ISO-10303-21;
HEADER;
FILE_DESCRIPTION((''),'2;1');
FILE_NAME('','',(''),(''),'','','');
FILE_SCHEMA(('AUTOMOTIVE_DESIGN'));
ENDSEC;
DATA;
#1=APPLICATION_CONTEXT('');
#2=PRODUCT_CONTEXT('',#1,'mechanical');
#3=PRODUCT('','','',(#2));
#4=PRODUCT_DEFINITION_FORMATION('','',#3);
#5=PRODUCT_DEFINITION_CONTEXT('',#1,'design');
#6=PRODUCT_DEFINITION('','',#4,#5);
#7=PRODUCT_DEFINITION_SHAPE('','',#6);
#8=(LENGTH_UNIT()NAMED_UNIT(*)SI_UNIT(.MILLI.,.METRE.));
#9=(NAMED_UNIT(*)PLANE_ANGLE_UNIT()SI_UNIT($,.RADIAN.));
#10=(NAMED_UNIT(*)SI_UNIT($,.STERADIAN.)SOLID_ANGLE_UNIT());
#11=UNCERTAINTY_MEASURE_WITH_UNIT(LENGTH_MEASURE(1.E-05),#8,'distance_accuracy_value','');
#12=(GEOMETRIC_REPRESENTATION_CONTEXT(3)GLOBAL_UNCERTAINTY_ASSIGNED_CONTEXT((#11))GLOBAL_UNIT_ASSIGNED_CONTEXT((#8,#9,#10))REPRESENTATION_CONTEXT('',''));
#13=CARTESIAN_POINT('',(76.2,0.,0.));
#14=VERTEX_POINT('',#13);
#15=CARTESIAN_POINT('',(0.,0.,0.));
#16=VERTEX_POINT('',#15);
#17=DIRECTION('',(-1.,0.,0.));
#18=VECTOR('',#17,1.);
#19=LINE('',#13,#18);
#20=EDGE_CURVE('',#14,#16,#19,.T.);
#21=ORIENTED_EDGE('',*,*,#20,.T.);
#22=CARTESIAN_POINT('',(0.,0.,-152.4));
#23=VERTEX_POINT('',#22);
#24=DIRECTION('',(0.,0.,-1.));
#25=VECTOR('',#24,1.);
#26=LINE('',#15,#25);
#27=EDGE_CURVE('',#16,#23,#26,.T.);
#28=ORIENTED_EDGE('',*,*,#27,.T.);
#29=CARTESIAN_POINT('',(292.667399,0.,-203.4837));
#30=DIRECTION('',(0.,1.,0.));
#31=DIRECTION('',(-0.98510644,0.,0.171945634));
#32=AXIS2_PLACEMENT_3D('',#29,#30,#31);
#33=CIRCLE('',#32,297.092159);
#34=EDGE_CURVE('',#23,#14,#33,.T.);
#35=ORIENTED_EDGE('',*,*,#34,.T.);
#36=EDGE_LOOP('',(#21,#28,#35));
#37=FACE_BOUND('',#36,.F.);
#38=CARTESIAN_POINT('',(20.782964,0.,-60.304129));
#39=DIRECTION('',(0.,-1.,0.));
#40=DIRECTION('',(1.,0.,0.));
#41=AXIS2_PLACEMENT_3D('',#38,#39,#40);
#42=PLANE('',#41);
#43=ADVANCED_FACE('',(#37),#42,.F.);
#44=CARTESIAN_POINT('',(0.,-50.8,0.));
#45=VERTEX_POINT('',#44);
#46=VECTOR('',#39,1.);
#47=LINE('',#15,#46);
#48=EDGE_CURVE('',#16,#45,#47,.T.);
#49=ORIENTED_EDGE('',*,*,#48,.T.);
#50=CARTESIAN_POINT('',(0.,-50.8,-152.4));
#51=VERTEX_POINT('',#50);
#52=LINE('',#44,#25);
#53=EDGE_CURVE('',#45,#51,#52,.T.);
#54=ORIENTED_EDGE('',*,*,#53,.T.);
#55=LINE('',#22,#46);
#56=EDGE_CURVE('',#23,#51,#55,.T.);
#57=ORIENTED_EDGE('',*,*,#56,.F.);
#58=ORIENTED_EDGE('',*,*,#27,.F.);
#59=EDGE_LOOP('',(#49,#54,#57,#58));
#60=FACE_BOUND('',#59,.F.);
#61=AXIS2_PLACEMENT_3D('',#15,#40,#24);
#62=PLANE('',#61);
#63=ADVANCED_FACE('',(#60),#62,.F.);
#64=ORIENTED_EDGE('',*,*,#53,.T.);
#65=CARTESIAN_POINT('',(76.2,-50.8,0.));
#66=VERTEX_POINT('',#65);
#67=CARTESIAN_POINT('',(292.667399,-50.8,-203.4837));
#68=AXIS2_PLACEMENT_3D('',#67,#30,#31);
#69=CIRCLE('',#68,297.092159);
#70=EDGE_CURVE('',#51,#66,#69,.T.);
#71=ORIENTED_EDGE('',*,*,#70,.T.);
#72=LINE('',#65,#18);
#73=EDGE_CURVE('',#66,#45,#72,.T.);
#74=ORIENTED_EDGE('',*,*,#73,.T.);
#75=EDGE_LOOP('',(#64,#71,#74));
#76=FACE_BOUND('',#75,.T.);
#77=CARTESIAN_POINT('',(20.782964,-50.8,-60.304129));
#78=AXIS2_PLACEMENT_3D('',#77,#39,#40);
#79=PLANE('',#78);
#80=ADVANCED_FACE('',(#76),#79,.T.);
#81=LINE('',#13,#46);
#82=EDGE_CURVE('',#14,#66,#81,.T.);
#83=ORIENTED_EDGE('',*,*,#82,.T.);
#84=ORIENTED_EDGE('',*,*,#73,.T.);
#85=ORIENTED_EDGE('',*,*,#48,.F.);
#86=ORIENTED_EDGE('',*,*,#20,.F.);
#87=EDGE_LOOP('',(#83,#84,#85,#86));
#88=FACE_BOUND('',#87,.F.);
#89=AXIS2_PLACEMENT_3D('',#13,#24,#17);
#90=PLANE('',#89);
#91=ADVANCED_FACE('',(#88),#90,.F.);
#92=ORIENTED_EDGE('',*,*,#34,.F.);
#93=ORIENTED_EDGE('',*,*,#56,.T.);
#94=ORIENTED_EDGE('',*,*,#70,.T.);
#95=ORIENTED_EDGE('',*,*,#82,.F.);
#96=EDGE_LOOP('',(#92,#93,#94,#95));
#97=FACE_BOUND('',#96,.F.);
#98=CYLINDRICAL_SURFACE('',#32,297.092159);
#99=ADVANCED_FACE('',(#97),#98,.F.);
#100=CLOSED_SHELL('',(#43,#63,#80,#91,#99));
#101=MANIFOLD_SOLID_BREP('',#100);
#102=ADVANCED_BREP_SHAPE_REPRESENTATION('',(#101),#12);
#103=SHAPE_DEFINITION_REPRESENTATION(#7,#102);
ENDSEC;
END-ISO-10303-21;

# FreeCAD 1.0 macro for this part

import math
import FreeCAD as App
import Part
import Sketcher

V = App.Vector
Q = App.Units.Quantity

doc = App.newDocument("Part")
body = doc.addObject("PartDesign::Body", "Body")

# Sketch on XZ plane
sketch1 = body.newObject("Sketcher::SketchObject", "Sketch")
sketch1.AttachmentSupport = (doc.getObject("XZ_Plane"), [""])
sketch1.MapMode = "FlatFace"
sketch1.addGeometry([
    Part.LineSegment(V(76, 0, 0), V(0, 0, 0)),
    Part.LineSegment(V(0, 0, 0), V(0, -152, 0)),
    Part.ArcOfCircle(Part.Circle(V(293, -203, 0), V(0, 0, 1), 297), math.radians(137), math.radians(170)),
], False)
sketch1.addConstraint([
    Sketcher.Constraint("Coincident", 0, 2, 1, 1),
    Sketcher.Constraint("Coincident", 1, 2, 2, 2),
    Sketcher.Constraint("Coincident", 2, 1, 0, 1),
    Sketcher.Constraint("Horizontal", 0),
    Sketcher.Constraint("Vertical", 1),
    Sketcher.Constraint("Coincident", 0, 2, -1, 1),
    Sketcher.Constraint("DistanceX", 0, 2, 0, 1, Q("3 in")),
    Sketcher.Constraint("DistanceY", 1, 2, 1, 1, Q("6 in")),
    Sketcher.Constraint("Radius", 2, Q("297.092159 mm")),
])
pad1 = body.newObject("PartDesign::Pad", "Pad")
pad1.Profile = sketch1
pad1.Length = Q("2 in")

doc.recompute()
